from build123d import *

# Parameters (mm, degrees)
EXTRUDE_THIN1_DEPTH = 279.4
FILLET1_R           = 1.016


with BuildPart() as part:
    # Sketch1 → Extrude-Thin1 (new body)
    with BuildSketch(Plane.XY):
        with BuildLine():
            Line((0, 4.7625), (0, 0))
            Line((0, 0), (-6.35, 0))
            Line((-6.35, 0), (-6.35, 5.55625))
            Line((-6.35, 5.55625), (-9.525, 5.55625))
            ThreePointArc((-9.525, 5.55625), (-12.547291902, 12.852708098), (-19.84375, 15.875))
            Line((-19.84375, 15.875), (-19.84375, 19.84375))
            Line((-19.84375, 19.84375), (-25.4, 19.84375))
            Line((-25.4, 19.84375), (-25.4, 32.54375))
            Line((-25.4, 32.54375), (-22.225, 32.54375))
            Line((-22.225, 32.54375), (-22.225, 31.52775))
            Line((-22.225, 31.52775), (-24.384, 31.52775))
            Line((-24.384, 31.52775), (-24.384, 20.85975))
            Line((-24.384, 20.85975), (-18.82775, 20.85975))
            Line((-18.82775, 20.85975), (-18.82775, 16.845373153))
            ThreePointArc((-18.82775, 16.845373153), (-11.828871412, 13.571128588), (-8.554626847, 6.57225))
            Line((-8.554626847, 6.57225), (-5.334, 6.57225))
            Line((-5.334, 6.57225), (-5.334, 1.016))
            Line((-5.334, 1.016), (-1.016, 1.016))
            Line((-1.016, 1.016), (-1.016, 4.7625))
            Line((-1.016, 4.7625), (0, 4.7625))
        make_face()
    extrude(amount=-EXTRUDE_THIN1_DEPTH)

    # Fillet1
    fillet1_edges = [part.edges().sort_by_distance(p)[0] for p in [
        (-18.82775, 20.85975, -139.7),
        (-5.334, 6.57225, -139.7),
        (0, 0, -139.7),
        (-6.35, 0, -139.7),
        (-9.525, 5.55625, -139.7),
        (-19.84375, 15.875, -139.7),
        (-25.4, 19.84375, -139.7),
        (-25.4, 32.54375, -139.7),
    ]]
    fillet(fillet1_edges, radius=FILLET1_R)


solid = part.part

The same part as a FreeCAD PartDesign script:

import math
import FreeCAD as App
import Part
import Sketcher
Q = App.Units.Quantity


def edges_at(feature, points):
    """Names of the edges that pass closest to the given points."""
    edges = feature.Shape.Edges
    near = lambda p: min(range(len(edges)), key=lambda i: edges[i].distToShape(Part.Vertex(*p))[0])
    return sorted({f"Edge{near(p) + 1}" for p in points})

doc = App.newDocument("Part")
body = doc.addObject("PartDesign::Body", "Body")

sketch1 = body.newObject("Sketcher::SketchObject", "Sketch")
sketch1.AttachmentSupport = (doc.getObject("XY_Plane"), [""])
sketch1.MapMode = "FlatFace"
sketch1.addGeometry(Part.LineSegment(App.Vector(0, 0, 0), App.Vector(0, 4.8, 0)), False)
sketch1.addGeometry(Part.LineSegment(App.Vector(0, 4.8, 0), App.Vector(-1, 4.8, 0)), False)
sketch1.addGeometry(Part.LineSegment(App.Vector(-1, 4.8, 0), App.Vector(-1, 1, 0)), False)
sketch1.addGeometry(Part.LineSegment(App.Vector(-1, 1, 0), App.Vector(-5.3, 1, 0)), False)
sketch1.addGeometry(Part.LineSegment(App.Vector(-5.3, 1, 0), App.Vector(-5.3, 6.6, 0)), False)
sketch1.addGeometry(Part.LineSegment(App.Vector(-5.3, 6.6, 0), App.Vector(-8.6, 6.6, 0)), False)
sketch1.addGeometry(Part.ArcOfCircle(Part.Circle(App.Vector(-19.8, 5.6, 0), App.Vector(0, 0, 1), 11.3), math.radians(5), math.radians(85)), False)
sketch1.addGeometry(Part.LineSegment(App.Vector(-18.8, 16.8, 0), App.Vector(-18.8, 20.9, 0)), False)
sketch1.addGeometry(Part.LineSegment(App.Vector(-18.8, 20.9, 0), App.Vector(-24.4, 20.9, 0)), False)
sketch1.addGeometry(Part.LineSegment(App.Vector(-24.4, 20.9, 0), App.Vector(-24.4, 31.5, 0)), False)
sketch1.addGeometry(Part.LineSegment(App.Vector(-24.4, 31.5, 0), App.Vector(-22.2, 31.5, 0)), False)
sketch1.addGeometry(Part.LineSegment(App.Vector(-22.2, 31.5, 0), App.Vector(-22.2, 32.5, 0)), False)
sketch1.addGeometry(Part.LineSegment(App.Vector(-22.2, 32.5, 0), App.Vector(-25.4, 32.5, 0)), False)
sketch1.addGeometry(Part.LineSegment(App.Vector(-25.4, 32.5, 0), App.Vector(-25.4, 19.8, 0)), False)
sketch1.addGeometry(Part.LineSegment(App.Vector(-25.4, 19.8, 0), App.Vector(-19.8, 19.8, 0)), False)
sketch1.addGeometry(Part.LineSegment(App.Vector(-19.8, 19.8, 0), App.Vector(-19.8, 15.9, 0)), False)
sketch1.addGeometry(Part.ArcOfCircle(Part.Circle(App.Vector(-19.8, 5.6, 0), App.Vector(0, 0, 1), 10.3), math.radians(0), math.radians(90)), False)
sketch1.addGeometry(Part.LineSegment(App.Vector(-9.5, 5.6, 0), App.Vector(-6.3, 5.6, 0)), False)
sketch1.addGeometry(Part.LineSegment(App.Vector(-6.3, 5.6, 0), App.Vector(-6.3, 0, 0)), False)
sketch1.addGeometry(Part.LineSegment(App.Vector(-6.3, 0, 0), App.Vector(0, 0, 0)), False)
sketch1.addConstraint(Sketcher.Constraint("Coincident", 0, 2, 1, 1))
sketch1.addConstraint(Sketcher.Constraint("Coincident", 1, 2, 2, 1))
sketch1.addConstraint(Sketcher.Constraint("Coincident", 2, 2, 3, 1))
sketch1.addConstraint(Sketcher.Constraint("Coincident", 3, 2, 4, 1))
sketch1.addConstraint(Sketcher.Constraint("Coincident", 4, 2, 5, 1))
sketch1.addConstraint(Sketcher.Constraint("Coincident", 5, 2, 6, 1))
sketch1.addConstraint(Sketcher.Constraint("Coincident", 6, 2, 7, 1))
sketch1.addConstraint(Sketcher.Constraint("Coincident", 7, 2, 8, 1))
sketch1.addConstraint(Sketcher.Constraint("Coincident", 8, 2, 9, 1))
sketch1.addConstraint(Sketcher.Constraint("Coincident", 9, 2, 10, 1))
sketch1.addConstraint(Sketcher.Constraint("Coincident", 10, 2, 11, 1))
sketch1.addConstraint(Sketcher.Constraint("Coincident", 11, 2, 12, 1))
sketch1.addConstraint(Sketcher.Constraint("Coincident", 12, 2, 13, 1))
sketch1.addConstraint(Sketcher.Constraint("Coincident", 13, 2, 14, 1))
sketch1.addConstraint(Sketcher.Constraint("Coincident", 14, 2, 15, 1))
sketch1.addConstraint(Sketcher.Constraint("Coincident", 15, 2, 16, 2))
sketch1.addConstraint(Sketcher.Constraint("Coincident", 16, 1, 17, 1))
sketch1.addConstraint(Sketcher.Constraint("Coincident", 17, 2, 18, 1))
sketch1.addConstraint(Sketcher.Constraint("Coincident", 18, 2, 19, 1))
sketch1.addConstraint(Sketcher.Constraint("Coincident", 19, 2, 0, 1))
sketch1.addConstraint(Sketcher.Constraint("Vertical", 0))
sketch1.addConstraint(Sketcher.Constraint("Horizontal", 1))
sketch1.addConstraint(Sketcher.Constraint("Vertical", 2))
sketch1.addConstraint(Sketcher.Constraint("Horizontal", 3))
sketch1.addConstraint(Sketcher.Constraint("Vertical", 4))
sketch1.addConstraint(Sketcher.Constraint("Horizontal", 5))
sketch1.addConstraint(Sketcher.Constraint("Vertical", 7))
sketch1.addConstraint(Sketcher.Constraint("Horizontal", 8))
sketch1.addConstraint(Sketcher.Constraint("Vertical", 9))
sketch1.addConstraint(Sketcher.Constraint("Horizontal", 10))
sketch1.addConstraint(Sketcher.Constraint("Vertical", 11))
sketch1.addConstraint(Sketcher.Constraint("Horizontal", 12))
sketch1.addConstraint(Sketcher.Constraint("Vertical", 13))
sketch1.addConstraint(Sketcher.Constraint("Horizontal", 14))
sketch1.addConstraint(Sketcher.Constraint("Vertical", 15))
sketch1.addConstraint(Sketcher.Constraint("Horizontal", 17))
sketch1.addConstraint(Sketcher.Constraint("Vertical", 18))
sketch1.addConstraint(Sketcher.Constraint("Horizontal", 19))
sketch1.addConstraint(Sketcher.Constraint("Coincident", 19, 2, -1, 1))
sketch1.addConstraint(Sketcher.Constraint("Coincident", 16, 3, 6, 3))
sketch1.addConstraint(Sketcher.Constraint("Horizontal", 6, 3, 16, 1))
sketch1.addConstraint(Sketcher.Constraint("Vertical", 16, 3, 14, 2))
sketch1.addConstraint(Sketcher.Constraint("Equal", 8, 14))
sketch1.addConstraint(Sketcher.Constraint("Equal", 12, 17))
sketch1.addConstraint(Sketcher.Constraint("Equal", 14, 4))
sketch1.addConstraint(Sketcher.Constraint("Equal", 1, 11))
sketch1.addConstraint(Sketcher.Constraint("Equal", 4, 18))
sketch1.addConstraint(Sketcher.Constraint("DistanceY", 13, 2, 13, 1, Q("0.5 in")))
sketch1.addConstraint(Sketcher.Constraint("DistanceX", 12, 2, -1, 1, Q("1 in")))
sketch1.addConstraint(Sketcher.Constraint("Radius", 16, Q("0.40625 in")))
sketch1.addConstraint(Sketcher.Constraint("DistanceX", 1, 2, 1, 1, Q("0.04 in")))
sketch1.addConstraint(Sketcher.Constraint("DistanceX", 3, 2, 3, 1, Q("0.17 in")))
sketch1.addConstraint(Sketcher.Constraint("DistanceX", 19, 1, 19, 2, Q("0.25 in")))
sketch1.addConstraint(Sketcher.Constraint("DistanceY", 9, 1, 9, 2, Q("0.42 in")))
sketch1.addConstraint(Sketcher.Constraint("DistanceX", 8, 2, 8, 1, Q("0.21875 in")))
sketch1.addConstraint(Sketcher.Constraint("DistanceX", 10, 1, 10, 2, Q("0.085 in")))
sketch1.addConstraint(Sketcher.Constraint("DistanceY", 0, 1, 0, 2, Q("0.1875 in")))
sketch1.addConstraint(Sketcher.Constraint("DistanceY", 15, 2, 15, 1, Q("0.15625 in")))
sketch1.addConstraint(Sketcher.Constraint("DistanceY", -1, 1, 2, 2, Q("0.04 in")))
sketch1.addConstraint(Sketcher.Constraint("Radius", 6, Q("11.33475 mm")))
pad1 = body.newObject("PartDesign::Pad", "Pad")
pad1.Profile = sketch1
pad1.Length = Q("11 in")
pad1.Reversed = True
doc.recompute()

fillet = body.newObject("PartDesign::Fillet", "Fillet")
fillet.Base = (pad1, edges_at(pad1, [
    (-18.828, 20.86, -139.7),
    (-5.334, 6.572, -139.7),
    (0, 0, -139.7),
    (-6.35, 0, -139.7),
    (-9.525, 5.556, -139.7),
    (-19.844, 15.875, -139.7),
    (-25.4, 19.844, -139.7),
    (-25.4, 32.544, -139.7),
]))
fillet.Radius = Q("0.04 in")

doc.recompute()
